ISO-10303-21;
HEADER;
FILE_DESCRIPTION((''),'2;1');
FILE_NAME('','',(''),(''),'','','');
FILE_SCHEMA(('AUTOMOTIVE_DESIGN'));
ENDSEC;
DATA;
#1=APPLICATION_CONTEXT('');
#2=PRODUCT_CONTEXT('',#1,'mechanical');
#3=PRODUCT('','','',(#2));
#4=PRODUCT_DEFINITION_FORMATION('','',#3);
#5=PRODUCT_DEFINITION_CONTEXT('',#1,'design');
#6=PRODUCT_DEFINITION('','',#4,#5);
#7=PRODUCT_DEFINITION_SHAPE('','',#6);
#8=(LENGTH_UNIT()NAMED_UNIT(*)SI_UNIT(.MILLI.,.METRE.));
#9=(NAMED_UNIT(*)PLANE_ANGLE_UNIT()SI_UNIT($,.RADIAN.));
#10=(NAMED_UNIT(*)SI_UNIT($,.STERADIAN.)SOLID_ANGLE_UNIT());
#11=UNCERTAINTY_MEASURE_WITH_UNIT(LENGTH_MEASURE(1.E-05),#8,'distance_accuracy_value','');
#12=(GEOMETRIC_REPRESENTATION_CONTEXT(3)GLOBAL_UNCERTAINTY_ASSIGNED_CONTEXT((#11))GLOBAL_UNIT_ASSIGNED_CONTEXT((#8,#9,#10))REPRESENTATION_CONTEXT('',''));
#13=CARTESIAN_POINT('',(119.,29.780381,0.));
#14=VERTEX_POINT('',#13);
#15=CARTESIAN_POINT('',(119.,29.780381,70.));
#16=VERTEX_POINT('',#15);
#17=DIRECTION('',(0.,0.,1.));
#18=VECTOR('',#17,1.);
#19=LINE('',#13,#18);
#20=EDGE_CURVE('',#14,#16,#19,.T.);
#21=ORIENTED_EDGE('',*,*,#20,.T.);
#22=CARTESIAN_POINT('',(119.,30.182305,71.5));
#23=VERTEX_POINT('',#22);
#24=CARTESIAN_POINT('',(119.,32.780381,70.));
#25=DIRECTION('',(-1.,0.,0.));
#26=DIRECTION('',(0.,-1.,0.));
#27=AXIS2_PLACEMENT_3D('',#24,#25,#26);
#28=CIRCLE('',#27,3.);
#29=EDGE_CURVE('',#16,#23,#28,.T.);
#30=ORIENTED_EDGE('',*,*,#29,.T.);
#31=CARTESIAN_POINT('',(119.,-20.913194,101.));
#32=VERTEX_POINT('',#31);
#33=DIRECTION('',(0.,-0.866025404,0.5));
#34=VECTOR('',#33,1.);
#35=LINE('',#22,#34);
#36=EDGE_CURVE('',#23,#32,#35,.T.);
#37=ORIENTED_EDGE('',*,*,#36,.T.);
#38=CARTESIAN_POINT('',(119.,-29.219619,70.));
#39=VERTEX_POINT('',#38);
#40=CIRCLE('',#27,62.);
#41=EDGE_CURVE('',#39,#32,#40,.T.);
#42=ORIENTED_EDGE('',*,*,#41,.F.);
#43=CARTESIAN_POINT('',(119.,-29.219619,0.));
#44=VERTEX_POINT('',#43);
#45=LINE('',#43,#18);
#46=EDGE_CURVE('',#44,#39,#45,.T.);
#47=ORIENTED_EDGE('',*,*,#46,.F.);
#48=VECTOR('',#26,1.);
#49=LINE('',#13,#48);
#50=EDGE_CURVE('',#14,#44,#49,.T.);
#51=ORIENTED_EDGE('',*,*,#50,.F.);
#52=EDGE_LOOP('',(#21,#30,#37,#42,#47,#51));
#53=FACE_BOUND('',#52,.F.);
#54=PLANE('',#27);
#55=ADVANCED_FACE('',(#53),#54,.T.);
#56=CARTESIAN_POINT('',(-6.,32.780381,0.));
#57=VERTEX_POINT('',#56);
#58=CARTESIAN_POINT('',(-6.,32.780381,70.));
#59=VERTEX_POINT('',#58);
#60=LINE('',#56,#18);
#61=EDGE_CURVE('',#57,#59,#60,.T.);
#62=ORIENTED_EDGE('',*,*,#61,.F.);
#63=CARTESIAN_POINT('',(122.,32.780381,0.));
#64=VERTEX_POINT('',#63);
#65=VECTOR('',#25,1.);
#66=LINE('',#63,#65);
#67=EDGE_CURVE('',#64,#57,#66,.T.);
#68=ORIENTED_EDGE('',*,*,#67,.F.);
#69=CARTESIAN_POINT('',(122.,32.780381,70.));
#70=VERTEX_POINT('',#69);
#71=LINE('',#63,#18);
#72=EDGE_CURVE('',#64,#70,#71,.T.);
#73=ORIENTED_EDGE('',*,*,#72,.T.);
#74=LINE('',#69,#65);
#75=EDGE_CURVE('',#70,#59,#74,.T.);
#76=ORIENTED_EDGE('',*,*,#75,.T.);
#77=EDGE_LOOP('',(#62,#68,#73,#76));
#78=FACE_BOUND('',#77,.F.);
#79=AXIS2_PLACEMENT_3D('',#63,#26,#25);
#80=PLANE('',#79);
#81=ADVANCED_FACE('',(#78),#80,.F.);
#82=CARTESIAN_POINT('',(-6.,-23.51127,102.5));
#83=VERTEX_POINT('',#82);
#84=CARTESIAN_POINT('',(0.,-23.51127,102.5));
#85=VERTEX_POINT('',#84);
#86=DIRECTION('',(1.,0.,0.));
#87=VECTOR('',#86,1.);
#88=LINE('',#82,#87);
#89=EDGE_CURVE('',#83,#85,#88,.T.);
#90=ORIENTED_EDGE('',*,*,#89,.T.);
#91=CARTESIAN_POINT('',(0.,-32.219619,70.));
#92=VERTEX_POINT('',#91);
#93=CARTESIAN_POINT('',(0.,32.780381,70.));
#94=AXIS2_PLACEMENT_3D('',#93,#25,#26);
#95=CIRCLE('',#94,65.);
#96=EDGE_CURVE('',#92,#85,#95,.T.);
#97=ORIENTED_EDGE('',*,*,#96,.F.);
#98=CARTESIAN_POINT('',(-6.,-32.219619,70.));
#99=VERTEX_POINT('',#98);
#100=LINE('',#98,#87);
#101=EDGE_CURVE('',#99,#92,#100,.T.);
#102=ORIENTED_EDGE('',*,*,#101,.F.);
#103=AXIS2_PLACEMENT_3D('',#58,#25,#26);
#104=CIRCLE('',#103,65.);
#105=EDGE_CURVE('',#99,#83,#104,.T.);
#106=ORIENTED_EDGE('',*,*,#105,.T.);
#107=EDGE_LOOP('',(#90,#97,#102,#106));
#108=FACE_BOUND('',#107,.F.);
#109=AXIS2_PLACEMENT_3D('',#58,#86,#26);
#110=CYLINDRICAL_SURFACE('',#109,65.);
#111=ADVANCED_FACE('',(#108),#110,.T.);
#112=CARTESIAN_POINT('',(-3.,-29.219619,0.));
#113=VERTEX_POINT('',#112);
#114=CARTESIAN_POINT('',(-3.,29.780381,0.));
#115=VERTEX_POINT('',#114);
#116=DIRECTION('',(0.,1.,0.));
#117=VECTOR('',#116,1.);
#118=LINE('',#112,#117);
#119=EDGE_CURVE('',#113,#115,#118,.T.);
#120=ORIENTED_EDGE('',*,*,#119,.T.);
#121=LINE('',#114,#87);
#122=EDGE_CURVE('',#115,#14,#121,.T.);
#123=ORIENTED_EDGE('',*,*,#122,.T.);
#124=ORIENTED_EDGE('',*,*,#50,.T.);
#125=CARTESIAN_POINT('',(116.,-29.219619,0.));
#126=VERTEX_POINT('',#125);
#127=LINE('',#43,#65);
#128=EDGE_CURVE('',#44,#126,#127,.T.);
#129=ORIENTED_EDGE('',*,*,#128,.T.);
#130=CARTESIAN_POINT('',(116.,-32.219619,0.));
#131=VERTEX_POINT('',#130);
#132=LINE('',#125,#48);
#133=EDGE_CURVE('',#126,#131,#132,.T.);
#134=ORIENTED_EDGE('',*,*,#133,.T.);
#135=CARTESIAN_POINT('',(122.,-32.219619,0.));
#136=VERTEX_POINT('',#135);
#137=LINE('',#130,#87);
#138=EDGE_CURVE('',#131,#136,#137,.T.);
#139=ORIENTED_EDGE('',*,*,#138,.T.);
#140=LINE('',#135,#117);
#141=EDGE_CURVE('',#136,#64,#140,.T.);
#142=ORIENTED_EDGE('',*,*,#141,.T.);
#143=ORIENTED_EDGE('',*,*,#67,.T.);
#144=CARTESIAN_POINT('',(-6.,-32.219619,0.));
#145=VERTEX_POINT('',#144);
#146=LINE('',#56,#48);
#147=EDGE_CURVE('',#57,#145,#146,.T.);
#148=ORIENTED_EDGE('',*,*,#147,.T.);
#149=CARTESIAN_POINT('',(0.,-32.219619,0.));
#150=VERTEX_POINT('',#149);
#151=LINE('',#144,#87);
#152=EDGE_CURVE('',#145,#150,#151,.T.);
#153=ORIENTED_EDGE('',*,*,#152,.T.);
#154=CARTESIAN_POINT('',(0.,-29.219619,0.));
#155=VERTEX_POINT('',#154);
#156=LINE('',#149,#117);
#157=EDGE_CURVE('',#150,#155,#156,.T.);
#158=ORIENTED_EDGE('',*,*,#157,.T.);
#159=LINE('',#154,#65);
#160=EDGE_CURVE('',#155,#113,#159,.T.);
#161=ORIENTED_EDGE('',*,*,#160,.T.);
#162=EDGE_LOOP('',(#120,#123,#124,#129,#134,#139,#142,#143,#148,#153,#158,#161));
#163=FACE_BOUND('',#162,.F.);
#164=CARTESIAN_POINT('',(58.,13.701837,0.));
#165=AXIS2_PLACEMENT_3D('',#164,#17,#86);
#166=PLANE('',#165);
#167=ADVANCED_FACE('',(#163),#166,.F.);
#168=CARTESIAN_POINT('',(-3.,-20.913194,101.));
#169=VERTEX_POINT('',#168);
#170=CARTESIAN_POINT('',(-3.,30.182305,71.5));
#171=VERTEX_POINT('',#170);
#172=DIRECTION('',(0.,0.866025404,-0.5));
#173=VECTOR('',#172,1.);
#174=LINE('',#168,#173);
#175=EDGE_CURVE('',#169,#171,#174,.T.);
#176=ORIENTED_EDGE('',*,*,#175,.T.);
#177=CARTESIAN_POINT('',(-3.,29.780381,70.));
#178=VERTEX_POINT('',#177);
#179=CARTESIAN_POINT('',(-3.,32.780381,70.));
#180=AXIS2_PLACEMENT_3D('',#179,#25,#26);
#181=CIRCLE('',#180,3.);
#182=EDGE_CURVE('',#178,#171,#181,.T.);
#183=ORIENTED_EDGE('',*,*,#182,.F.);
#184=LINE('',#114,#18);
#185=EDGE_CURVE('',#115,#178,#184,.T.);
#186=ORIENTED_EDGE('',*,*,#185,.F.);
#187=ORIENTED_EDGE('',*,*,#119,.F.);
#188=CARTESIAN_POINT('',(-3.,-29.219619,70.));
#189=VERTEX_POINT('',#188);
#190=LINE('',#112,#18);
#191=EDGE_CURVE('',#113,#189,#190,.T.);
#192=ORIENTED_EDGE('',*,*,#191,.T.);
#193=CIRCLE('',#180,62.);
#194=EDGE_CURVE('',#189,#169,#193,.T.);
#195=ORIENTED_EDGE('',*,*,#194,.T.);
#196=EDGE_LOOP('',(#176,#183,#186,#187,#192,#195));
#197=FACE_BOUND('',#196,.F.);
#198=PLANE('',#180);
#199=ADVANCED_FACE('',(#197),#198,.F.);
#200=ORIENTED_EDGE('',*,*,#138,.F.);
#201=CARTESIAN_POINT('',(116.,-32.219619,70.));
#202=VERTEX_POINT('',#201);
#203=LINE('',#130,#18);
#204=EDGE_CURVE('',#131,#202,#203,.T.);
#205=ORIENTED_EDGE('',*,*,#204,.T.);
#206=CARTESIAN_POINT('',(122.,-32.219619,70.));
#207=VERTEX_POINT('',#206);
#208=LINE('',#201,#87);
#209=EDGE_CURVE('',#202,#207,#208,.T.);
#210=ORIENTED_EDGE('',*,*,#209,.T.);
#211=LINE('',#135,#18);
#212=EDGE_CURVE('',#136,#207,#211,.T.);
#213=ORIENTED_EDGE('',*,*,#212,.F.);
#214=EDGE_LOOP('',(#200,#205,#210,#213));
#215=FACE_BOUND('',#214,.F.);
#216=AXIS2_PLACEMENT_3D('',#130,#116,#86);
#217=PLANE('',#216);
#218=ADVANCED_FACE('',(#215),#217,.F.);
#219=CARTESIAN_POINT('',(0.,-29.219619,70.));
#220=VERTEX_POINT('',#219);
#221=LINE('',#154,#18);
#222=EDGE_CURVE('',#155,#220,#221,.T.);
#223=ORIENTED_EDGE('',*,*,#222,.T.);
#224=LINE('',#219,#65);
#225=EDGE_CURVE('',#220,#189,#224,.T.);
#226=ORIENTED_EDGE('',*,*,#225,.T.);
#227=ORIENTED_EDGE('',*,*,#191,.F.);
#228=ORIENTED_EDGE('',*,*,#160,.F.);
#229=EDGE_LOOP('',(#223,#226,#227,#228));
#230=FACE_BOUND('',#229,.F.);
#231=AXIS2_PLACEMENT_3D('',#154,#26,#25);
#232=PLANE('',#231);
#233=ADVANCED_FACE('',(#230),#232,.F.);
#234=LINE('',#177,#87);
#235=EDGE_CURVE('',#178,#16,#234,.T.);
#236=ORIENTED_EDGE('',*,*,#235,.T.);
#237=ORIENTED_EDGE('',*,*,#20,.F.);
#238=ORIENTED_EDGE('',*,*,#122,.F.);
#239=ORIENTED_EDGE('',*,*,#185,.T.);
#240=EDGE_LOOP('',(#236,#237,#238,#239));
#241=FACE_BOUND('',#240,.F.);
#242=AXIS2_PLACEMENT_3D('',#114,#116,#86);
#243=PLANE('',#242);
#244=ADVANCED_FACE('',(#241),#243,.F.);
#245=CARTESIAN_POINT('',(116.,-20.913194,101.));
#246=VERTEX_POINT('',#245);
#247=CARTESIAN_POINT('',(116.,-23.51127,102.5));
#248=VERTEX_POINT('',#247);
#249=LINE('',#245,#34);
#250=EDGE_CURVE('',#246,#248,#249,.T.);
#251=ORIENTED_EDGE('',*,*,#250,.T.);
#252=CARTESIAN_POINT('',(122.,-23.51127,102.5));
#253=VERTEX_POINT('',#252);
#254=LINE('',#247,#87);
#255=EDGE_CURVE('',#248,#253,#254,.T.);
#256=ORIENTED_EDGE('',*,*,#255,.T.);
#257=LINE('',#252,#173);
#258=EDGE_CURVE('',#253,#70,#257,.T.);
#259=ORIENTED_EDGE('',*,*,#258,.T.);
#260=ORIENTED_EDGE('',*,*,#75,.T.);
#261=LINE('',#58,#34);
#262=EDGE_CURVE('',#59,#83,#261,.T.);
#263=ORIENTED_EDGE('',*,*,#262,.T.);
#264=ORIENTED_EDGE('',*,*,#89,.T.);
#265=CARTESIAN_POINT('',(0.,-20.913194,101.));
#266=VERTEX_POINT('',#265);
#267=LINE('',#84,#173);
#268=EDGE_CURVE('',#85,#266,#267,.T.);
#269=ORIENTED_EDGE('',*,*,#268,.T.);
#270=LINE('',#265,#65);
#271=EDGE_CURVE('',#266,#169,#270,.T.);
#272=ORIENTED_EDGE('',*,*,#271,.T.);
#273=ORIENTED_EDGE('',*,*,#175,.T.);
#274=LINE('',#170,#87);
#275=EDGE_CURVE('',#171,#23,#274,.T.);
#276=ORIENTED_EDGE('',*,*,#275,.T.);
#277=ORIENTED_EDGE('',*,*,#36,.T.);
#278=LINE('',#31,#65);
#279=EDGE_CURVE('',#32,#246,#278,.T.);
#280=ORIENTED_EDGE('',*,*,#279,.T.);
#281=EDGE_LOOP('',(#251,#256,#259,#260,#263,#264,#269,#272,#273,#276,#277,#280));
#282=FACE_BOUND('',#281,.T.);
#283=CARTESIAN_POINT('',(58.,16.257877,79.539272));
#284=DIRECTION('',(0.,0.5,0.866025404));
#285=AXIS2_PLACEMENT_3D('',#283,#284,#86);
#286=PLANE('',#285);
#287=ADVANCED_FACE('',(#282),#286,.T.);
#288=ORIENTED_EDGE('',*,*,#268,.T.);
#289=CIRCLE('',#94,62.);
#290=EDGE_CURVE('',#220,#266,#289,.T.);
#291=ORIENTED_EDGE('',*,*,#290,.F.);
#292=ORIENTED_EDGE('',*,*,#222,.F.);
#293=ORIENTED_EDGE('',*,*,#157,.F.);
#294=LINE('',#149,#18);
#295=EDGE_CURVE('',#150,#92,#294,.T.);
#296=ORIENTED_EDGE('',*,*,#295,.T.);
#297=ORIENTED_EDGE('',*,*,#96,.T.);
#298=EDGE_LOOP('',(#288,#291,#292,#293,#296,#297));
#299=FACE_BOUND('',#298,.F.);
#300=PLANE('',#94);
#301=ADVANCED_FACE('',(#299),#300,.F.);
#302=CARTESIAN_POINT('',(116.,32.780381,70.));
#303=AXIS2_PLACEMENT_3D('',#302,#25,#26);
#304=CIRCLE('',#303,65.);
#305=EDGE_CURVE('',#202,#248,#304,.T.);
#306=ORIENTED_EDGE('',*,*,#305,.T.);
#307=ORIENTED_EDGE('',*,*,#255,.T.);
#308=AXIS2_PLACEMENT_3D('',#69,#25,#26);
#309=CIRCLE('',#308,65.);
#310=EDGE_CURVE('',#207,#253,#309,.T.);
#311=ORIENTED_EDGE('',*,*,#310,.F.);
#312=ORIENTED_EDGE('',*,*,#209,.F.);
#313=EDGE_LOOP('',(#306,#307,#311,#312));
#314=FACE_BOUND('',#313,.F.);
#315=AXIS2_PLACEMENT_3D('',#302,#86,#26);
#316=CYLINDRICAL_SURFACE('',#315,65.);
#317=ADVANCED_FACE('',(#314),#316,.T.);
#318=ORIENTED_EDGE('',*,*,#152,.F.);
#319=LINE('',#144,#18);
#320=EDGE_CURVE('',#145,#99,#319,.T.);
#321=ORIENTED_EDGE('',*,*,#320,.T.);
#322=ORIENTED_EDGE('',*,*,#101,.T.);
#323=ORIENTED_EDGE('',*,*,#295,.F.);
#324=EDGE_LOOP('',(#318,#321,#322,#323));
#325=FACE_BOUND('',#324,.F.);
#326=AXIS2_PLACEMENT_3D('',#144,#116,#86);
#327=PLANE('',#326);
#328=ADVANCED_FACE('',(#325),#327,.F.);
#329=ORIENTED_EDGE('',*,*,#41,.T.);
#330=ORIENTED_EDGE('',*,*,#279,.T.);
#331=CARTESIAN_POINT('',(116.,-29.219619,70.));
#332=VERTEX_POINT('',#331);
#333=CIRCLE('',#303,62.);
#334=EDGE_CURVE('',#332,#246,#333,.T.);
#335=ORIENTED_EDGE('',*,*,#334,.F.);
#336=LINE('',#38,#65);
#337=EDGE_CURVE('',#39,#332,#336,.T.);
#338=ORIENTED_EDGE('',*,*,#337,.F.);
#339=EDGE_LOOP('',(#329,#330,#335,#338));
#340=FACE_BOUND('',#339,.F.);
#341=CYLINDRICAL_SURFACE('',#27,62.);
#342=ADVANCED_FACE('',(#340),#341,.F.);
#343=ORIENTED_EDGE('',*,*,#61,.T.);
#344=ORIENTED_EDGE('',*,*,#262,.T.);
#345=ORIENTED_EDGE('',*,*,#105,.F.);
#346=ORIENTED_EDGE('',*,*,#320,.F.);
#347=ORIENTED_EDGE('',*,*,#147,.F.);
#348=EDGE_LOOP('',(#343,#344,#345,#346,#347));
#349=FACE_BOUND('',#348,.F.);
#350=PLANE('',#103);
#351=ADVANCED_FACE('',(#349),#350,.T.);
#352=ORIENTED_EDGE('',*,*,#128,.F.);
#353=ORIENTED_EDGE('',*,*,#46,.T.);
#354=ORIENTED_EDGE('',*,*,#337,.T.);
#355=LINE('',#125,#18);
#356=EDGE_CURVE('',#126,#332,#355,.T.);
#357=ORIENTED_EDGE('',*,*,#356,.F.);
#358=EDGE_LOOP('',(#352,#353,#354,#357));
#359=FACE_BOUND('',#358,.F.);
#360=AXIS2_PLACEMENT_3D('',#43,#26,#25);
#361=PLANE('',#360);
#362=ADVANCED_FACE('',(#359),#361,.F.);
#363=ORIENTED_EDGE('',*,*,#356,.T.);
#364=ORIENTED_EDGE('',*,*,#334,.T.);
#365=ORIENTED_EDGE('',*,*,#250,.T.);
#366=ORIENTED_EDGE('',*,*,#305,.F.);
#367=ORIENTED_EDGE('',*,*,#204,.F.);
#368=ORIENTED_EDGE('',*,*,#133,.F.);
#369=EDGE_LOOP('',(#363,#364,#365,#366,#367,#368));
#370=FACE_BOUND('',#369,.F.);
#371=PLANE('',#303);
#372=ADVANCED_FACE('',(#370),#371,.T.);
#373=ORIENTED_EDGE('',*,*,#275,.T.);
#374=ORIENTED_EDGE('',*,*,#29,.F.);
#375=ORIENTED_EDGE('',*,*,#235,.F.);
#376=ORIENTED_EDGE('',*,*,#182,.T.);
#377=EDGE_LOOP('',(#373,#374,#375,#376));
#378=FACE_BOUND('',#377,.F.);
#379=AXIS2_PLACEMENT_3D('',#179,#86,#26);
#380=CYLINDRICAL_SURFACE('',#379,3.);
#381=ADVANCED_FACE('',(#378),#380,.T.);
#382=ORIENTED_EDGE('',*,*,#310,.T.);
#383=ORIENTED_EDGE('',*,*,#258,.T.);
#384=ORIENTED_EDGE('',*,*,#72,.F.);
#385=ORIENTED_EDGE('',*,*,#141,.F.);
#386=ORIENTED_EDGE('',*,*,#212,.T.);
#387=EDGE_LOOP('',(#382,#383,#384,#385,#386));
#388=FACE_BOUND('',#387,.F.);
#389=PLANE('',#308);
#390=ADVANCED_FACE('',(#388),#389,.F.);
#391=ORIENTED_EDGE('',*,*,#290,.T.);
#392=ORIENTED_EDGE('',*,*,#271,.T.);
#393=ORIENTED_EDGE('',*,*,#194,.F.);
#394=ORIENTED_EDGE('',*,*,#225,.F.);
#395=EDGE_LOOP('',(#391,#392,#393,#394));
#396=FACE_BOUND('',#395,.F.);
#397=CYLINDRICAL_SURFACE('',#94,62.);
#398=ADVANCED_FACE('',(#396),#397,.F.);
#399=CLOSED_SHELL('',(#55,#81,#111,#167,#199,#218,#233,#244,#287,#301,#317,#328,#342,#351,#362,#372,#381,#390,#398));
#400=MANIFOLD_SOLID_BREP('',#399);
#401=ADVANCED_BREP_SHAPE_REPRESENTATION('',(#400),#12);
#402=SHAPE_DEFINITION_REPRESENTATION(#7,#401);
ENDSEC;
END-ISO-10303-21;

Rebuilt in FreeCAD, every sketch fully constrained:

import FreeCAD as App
import Part
import Sketcher
Q = App.Units.Quantity


def add_polygon(sketch, points):
    """Adds a closed chain of lines whose ends are joined by coincident constraints."""
    first, n = sketch.GeometryCount, len(points)
    for a, b in zip(points, points[1:] + points[:1]):
        sketch.addGeometry(Part.LineSegment(App.Vector(*a, 0), App.Vector(*b, 0)), False)
    for i in range(n):
        sketch.addConstraint(Sketcher.Constraint("Coincident", first + i, 2, first + (i + 1) % n, 1))

doc = App.newDocument("Part")
params = doc.addObject("Spreadsheet::Sheet", "Params")
for row, (alias, value) in enumerate([
    ("sketch1_width", "6 mm"),
    ("sketch1_width2", "3 mm"),
    ("sketch1_width3", "122 mm"),
    ("sketch1_height", "59 mm"),
    ("sketch1_height2", "65 mm"),
    ("pad1_length", "70 mm"),
    ("sketch2_width", "128 mm"),
    ("sketch2_width2", "6 mm"),
    ("sketch2_width3", "3 mm"),
    ("sketch2_height", "65 mm"),
    ("sketch2_height2", "59 mm"),
    ("revolution_angle", "30 deg"),
], start=1):
    params.set(f"A{row}", alias)
    params.set(f"B{row}", "=" + value)
    params.setAlias(f"B{row}", alias)

body = doc.addObject("PartDesign::Body", "Body")

sketch1 = doc.addObject("Sketcher::SketchObject", "Sketch")
body.addObject(sketch1)
sketch1.AttachmentSupport = (doc.XY_Plane, [""])
sketch1.MapMode = "FlatFace"
add_polygon(sketch1, [(-6, -32.2), (0, -32.2), (0, -29.2), (-3, -29.2), (-3, 29.8), (119, 29.8), (119, -29.2), (116, -29.2), (116, -32.2), (122, -32.2), (122, 32.8), (-6, 32.8)])
sketch1.addConstraint([
    Sketcher.Constraint("Horizontal", 0),
    Sketcher.Constraint("Vertical", 1),
    Sketcher.Constraint("Horizontal", 2),
    Sketcher.Constraint("Vertical", 3),
    Sketcher.Constraint("Horizontal", 4),
    Sketcher.Constraint("Vertical", 5),
    Sketcher.Constraint("Horizontal", 6),
    Sketcher.Constraint("Vertical", 7),
    Sketcher.Constraint("Horizontal", 8),
    Sketcher.Constraint("Vertical", 9),
    Sketcher.Constraint("Horizontal", 10),
    Sketcher.Constraint("Vertical", 11),
    Sketcher.Constraint("PointOnObject", 0, 2, -2),
    Sketcher.Constraint("Horizontal", 2, 2, 5, 2),
    Sketcher.Constraint("Horizontal", 0, 2, 7, 2),
    Sketcher.Constraint("Equal", 2, 6),
    Sketcher.Constraint("Equal", 0, 8),
    Sketcher.Constraint("Equal", 6, 1),
    Sketcher.Constraint("DistanceX", 0, 1, 0, 2, Q("6 mm")),
    Sketcher.Constraint("DistanceX", 2, 2, 2, 1, Q("3 mm")),
    Sketcher.Constraint("DistanceX", 4, 1, 4, 2, Q("122 mm")),
    Sketcher.Constraint("DistanceY", 3, 1, 3, 2, Q("59 mm")),
    Sketcher.Constraint("DistanceY", 9, 1, 9, 2, Q("65 mm")),
    Sketcher.Constraint("DistanceY", 0, 2, -1, 1, Q("32.219619 mm")),
])
sketch1.setExpression("Constraints[30]", "Params.sketch1_width")
sketch1.setExpression("Constraints[31]", "Params.sketch1_width2")
sketch1.setExpression("Constraints[32]", "Params.sketch1_width3")
sketch1.setExpression("Constraints[33]", "Params.sketch1_height")
sketch1.setExpression("Constraints[34]", "Params.sketch1_height2")
pad1 = doc.addObject("PartDesign::Pad", "Pad")
body.addObject(pad1)
pad1.Profile = sketch1
pad1.setExpression("Length", "Params.pad1_length")

sketch2 = doc.addObject("Sketcher::SketchObject", "Sketch001")
body.addObject(sketch2)
sketch2.AttachmentSupport = (doc.XY_Plane, [""])
sketch2.MapMode = "FlatFace"
sketch2.AttachmentOffset = App.Placement(App.Vector(0, 0, 70), App.Rotation())
add_polygon(sketch2, [(122, -32.2), (122, 32.8), (-6, 32.8), (-6, -32.2), (0, -32.2), (0, -29.2), (-3, -29.2), (-3, 29.8), (119, 29.8), (119, -29.2), (116, -29.2), (116, -32.2)])
sketch2.addGeometry(Part.LineSegment(App.Vector(122, 32.8, 0), App.Vector(-6, 32.8, 0)), True)
sketch2.addConstraint([
    Sketcher.Constraint("Vertical", 0),
    Sketcher.Constraint("Horizontal", 1),
    Sketcher.Constraint("Vertical", 2),
    Sketcher.Constraint("Horizontal", 3),
    Sketcher.Constraint("Vertical", 4),
    Sketcher.Constraint("Horizontal", 5),
    Sketcher.Constraint("Vertical", 6),
    Sketcher.Constraint("Horizontal", 7),
    Sketcher.Constraint("Vertical", 8),
    Sketcher.Constraint("Horizontal", 9),
    Sketcher.Constraint("Vertical", 10),
    Sketcher.Constraint("Horizontal", 11),
    Sketcher.Constraint("Horizontal", 12),
    Sketcher.Constraint("Coincident", 12, 1, 0, 2),
    Sketcher.Constraint("PointOnObject", 3, 2, -2),
    Sketcher.Constraint("Horizontal", 5, 2, 8, 2),
    Sketcher.Constraint("Horizontal", 3, 2, 10, 2),
    Sketcher.Constraint("Vertical", 2, 2, 12, 2),
    Sketcher.Constraint("Equal", 5, 9),
    Sketcher.Constraint("Equal", 3, 11),
    Sketcher.Constraint("Equal", 9, 4),
    Sketcher.Constraint("DistanceX", 1, 2, 1, 1, Q("128 mm")),
    Sketcher.Constraint("DistanceX", 3, 1, 3, 2, Q("6 mm")),
    Sketcher.Constraint("DistanceX", 5, 2, 5, 1, Q("3 mm")),
    Sketcher.Constraint("DistanceY", 0, 1, 0, 2, Q("65 mm")),
    Sketcher.Constraint("DistanceY", 6, 1, 6, 2, Q("59 mm")),
    Sketcher.Constraint("DistanceY", -1, 1, 0, 2, Q("32.780381 mm")),
])
sketch2.setExpression("Constraints[33]", "Params.sketch2_width")
sketch2.setExpression("Constraints[34]", "Params.sketch2_width2")
sketch2.setExpression("Constraints[35]", "Params.sketch2_width3")
sketch2.setExpression("Constraints[36]", "Params.sketch2_height")
sketch2.setExpression("Constraints[37]", "Params.sketch2_height2")
revolution = doc.addObject("PartDesign::Revolution", "Revolution")
body.addObject(revolution)
revolution.Profile = sketch2
revolution.ReferenceAxis = (sketch2, ["Axis0"])
revolution.setExpression("Angle", "Params.revolution_angle")

doc.recompute()
